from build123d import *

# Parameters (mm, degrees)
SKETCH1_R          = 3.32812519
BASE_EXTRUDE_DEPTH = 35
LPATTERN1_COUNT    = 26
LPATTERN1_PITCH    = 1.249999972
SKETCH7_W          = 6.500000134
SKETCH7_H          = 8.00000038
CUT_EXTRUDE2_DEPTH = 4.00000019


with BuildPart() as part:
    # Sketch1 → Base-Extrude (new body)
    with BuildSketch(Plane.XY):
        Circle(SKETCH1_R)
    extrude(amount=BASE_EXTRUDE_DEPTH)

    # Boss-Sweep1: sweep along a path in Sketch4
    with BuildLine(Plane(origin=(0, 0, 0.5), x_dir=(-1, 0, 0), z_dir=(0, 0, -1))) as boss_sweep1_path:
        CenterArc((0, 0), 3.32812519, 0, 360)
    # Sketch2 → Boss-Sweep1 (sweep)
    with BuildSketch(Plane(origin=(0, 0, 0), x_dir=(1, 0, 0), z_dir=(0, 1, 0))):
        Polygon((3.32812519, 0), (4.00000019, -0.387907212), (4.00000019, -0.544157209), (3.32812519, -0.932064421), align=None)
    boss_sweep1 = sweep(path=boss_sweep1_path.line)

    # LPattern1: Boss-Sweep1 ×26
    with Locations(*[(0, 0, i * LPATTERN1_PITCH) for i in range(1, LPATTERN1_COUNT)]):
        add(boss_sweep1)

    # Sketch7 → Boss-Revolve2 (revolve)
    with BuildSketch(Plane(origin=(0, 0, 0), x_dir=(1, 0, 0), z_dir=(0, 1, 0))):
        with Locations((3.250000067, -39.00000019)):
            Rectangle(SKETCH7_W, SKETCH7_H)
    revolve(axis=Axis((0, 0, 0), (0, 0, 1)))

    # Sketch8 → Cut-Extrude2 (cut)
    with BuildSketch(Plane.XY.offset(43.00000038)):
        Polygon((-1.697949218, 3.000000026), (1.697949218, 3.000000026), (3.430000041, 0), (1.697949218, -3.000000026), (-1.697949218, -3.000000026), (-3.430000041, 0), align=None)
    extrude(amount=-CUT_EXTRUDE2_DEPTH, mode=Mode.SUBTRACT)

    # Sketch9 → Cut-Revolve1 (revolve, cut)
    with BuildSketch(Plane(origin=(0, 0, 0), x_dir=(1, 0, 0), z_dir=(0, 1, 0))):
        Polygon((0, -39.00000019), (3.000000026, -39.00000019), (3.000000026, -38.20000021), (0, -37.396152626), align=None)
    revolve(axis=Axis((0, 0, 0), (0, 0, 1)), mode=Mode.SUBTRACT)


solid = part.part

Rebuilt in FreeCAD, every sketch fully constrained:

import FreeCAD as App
import Part
import Sketcher
Q = App.Units.Quantity


def add_polygon(sketch, points):
    """Adds a closed chain of lines whose ends are joined by coincident constraints."""
    first, n = sketch.GeometryCount, len(points)
    for a, b in zip(points, points[1:] + points[:1]):
        sketch.addGeometry(Part.LineSegment(App.Vector(*a, 0), App.Vector(*b, 0)), False)
    for i in range(n):
        sketch.addConstraint(Sketcher.Constraint("Coincident", first + i, 2, first + (i + 1) % n, 1))

doc = App.newDocument("Part")
params = doc.addObject("Spreadsheet::Sheet", "Params")
for row, (alias, value) in enumerate([
    ("pad1_length", "35 mm"),
    ("linearpattern_pitch", "1.25 mm"),
    ("sketch4_height", "8 mm"),
    ("sketch4_width", "6.5 mm"),
    ("revolution_angle", "360 deg"),
    ("pocket1_length", "4 mm"),
    ("sketch6_width", "3 mm"),
    ("sketch6_height", "0.8 mm"),
    ("groove_angle", "360 deg"),
], start=1):
    params.set(f"A{row}", alias)
    params.set(f"B{row}", "=" + value)
    params.setAlias(f"B{row}", alias)

body = doc.addObject("PartDesign::Body", "Body")

# Sketch on XY plane
sketch1 = body.newObject("Sketcher::SketchObject", "Sketch")
sketch1.AttachmentSupport = (doc.getObject("XY_Plane"), [""])
sketch1.MapMode = "FlatFace"
sketch1.addGeometry(Part.Circle(App.Vector(0, 0, 0), App.Vector(0, 0, 1), 3.3), False)
sketch1.addConstraint(Sketcher.Constraint("Coincident", 0, 3, -1, 1))
sketch1.addConstraint(Sketcher.Constraint("Diameter", 0, Q("6.65625 mm")))
pad1 = body.newObject("PartDesign::Pad", "Pad")
pad1.Profile = sketch1
pad1.setExpression("Length", "Params.pad1_length")

# Sketch on XZ plane
sketch2 = body.newObject("Sketcher::SketchObject", "Sketch001")
sketch2.AttachmentSupport = (doc.getObject("XZ_Plane"), [""])
sketch2.MapMode = "FlatFace"
add_polygon(sketch2, [(4, 0.39), (3.33, 0), (3.33, 0.93), (4, 0.54)])  # lines 0-3
sketch2.addConstraint(Sketcher.Constraint("Vertical", 1))
sketch2.addConstraint(Sketcher.Constraint("Vertical", 3))
sketch2.addConstraint(Sketcher.Constraint("PointOnObject", 0, 2, -1))
sketch2.addConstraint(Sketcher.Constraint("Equal", 0, 2))
sketch2.addConstraint(Sketcher.Constraint("Angle", 0, Q("-150 deg")))
sketch2.addConstraint(Sketcher.Constraint("DistanceX", -1, 1, 2, 2, Q("4 mm")))
sketch2.addConstraint(Sketcher.Constraint("DistanceY", 3, 2, 3, 1, Q("0.15625 mm")))
sketch2.addConstraint(Sketcher.Constraint("DistanceY", 1, 1, 1, 2, Q("0.932064 mm")))

# Sketch on XY plane
sketch3 = body.newObject("Sketcher::SketchObject", "Sketch002")
sketch3.AttachmentSupport = (doc.getObject("XY_Plane"), [""])
sketch3.MapMode = "FlatFace"
sketch3.AttachmentOffset = App.Placement(App.Vector(0, 0, 0.5), App.Rotation())
sketch3.addGeometry(Part.Circle(App.Vector(0, 0, 0), App.Vector(0, 0, 1), 3.3), False)
sketch3.addConstraint(Sketcher.Constraint("Coincident", 0, 3, -1, 1))
sketch3.addConstraint(Sketcher.Constraint("Diameter", 0, Q("6.65625 mm")))
doc.recompute()

additivepipe = body.newObject("PartDesign::AdditivePipe", "AdditivePipe")
additivepipe.Profile = sketch2
additivepipe.Spine = (sketch3, ["Edge1"])
doc.recompute()

linearpattern = body.newObject("PartDesign::LinearPattern", "LinearPattern")
linearpattern.Originals = [additivepipe]
linearpattern.Direction = (doc.getObject("Z_Axis"), [""])
linearpattern.Mode = "offset"
linearpattern.setExpression("Offset", "Params.linearpattern_pitch")
linearpattern.Occurrences = 26
body.Tip = linearpattern

# Sketch on XZ plane
sketch4 = body.newObject("Sketcher::SketchObject", "Sketch003")
sketch4.AttachmentSupport = (doc.getObject("XZ_Plane"), [""])
sketch4.MapMode = "FlatFace"
add_polygon(sketch4, [(0, 35), (0, 43), (7, 43), (7, 35)])  # lines 0-3
sketch4.addConstraint(Sketcher.Constraint("Vertical", 0))
sketch4.addConstraint(Sketcher.Constraint("Horizontal", 1))
sketch4.addConstraint(Sketcher.Constraint("Vertical", 2))
sketch4.addConstraint(Sketcher.Constraint("Horizontal", 3))
sketch4.addConstraint(Sketcher.Constraint("PointOnObject", 0, 2, -2))
sketch4.addConstraint(Sketcher.Constraint("DistanceY", 0, 1, 0, 2, Q("8 mm")))
sketch4.addConstraint(Sketcher.Constraint("DistanceX", 1, 1, 1, 2, Q("6.5 mm")))
sketch4.addConstraint(Sketcher.Constraint("DistanceY", -1, 1, 0, 2, Q("43 mm")))
sketch4.setExpression("Constraints[9]", "Params.sketch4_height")
sketch4.setExpression("Constraints[10]", "Params.sketch4_width")
revolution = body.newObject("PartDesign::Revolution", "Revolution")
revolution.Profile = sketch4
revolution.ReferenceAxis = (sketch4, ["V_Axis"])
revolution.setExpression("Angle", "Params.revolution_angle")

# Sketch on XY plane
sketch5 = body.newObject("Sketcher::SketchObject", "Sketch004")
sketch5.AttachmentSupport = (doc.getObject("XY_Plane"), [""])
sketch5.MapMode = "FlatFace"
sketch5.AttachmentOffset = App.Placement(App.Vector(0, 0, 43), App.Rotation())
add_polygon(sketch5, [(1.7, 3), (-1.7, 3), (-3.4, 0), (-1.7, -3), (1.7, -3), (3.4, 0)])  # lines 0-5
sketch5.addConstraint(Sketcher.Constraint("Horizontal", 0))
sketch5.addConstraint(Sketcher.Constraint("Horizontal", 3))
sketch5.addConstraint(Sketcher.Constraint("Symmetric", 0, 2, 3, 2, -1, 1))
sketch5.addConstraint(Sketcher.Constraint("Symmetric", 1, 2, 4, 2, -1, 1))
sketch5.addConstraint(Sketcher.Constraint("PointOnObject", 1, 2, -1))
sketch5.addConstraint(Sketcher.Constraint("Parallel", 2, 5))
sketch5.addConstraint(Sketcher.Constraint("Vertical", 0, 2, 2, 2))
sketch5.addConstraint(Sketcher.Constraint("Angle", 1, Q("-120 deg")))
sketch5.addConstraint(Sketcher.Constraint("DistanceY", -1, 1, 0, 2, Q("3 mm")))
sketch5.addConstraint(Sketcher.Constraint("DistanceX", 1, 2, -1, 1, Q("3.43 mm")))
pocket1 = body.newObject("PartDesign::Pocket", "Pocket")
pocket1.Profile = sketch5
pocket1.setExpression("Length", "Params.pocket1_length")

# Sketch on XZ plane
sketch6 = body.newObject("Sketcher::SketchObject", "Sketch005")
sketch6.AttachmentSupport = (doc.getObject("XZ_Plane"), [""])
sketch6.MapMode = "FlatFace"
add_polygon(sketch6, [(0, 39), (3, 39), (3, 38.2), (0, 37.4)])  # lines 0-3
sketch6.addConstraint(Sketcher.Constraint("Horizontal", 0))
sketch6.addConstraint(Sketcher.Constraint("Vertical", 1))
sketch6.addConstraint(Sketcher.Constraint("Vertical", 3))
sketch6.addConstraint(Sketcher.Constraint("PointOnObject", 2, 2, -2))
sketch6.addConstraint(Sketcher.Constraint("DistanceX", 0, 1, 0, 2, Q("3 mm")))
sketch6.addConstraint(Sketcher.Constraint("Angle", 2, Q("-165 deg")))
sketch6.addConstraint(Sketcher.Constraint("DistanceY", 1, 2, 1, 1, Q("0.8 mm")))
sketch6.addConstraint(Sketcher.Constraint("DistanceY", -1, 1, 0, 2, Q("39 mm")))
sketch6.setExpression("Constraints[8]", "Params.sketch6_width")
sketch6.setExpression("Constraints[10]", "Params.sketch6_height")
groove = body.newObject("PartDesign::Groove", "Groove")
groove.Profile = sketch6
groove.ReferenceAxis = (sketch6, ["V_Axis"])
groove.setExpression("Angle", "Params.groove_angle")

doc.recompute()
